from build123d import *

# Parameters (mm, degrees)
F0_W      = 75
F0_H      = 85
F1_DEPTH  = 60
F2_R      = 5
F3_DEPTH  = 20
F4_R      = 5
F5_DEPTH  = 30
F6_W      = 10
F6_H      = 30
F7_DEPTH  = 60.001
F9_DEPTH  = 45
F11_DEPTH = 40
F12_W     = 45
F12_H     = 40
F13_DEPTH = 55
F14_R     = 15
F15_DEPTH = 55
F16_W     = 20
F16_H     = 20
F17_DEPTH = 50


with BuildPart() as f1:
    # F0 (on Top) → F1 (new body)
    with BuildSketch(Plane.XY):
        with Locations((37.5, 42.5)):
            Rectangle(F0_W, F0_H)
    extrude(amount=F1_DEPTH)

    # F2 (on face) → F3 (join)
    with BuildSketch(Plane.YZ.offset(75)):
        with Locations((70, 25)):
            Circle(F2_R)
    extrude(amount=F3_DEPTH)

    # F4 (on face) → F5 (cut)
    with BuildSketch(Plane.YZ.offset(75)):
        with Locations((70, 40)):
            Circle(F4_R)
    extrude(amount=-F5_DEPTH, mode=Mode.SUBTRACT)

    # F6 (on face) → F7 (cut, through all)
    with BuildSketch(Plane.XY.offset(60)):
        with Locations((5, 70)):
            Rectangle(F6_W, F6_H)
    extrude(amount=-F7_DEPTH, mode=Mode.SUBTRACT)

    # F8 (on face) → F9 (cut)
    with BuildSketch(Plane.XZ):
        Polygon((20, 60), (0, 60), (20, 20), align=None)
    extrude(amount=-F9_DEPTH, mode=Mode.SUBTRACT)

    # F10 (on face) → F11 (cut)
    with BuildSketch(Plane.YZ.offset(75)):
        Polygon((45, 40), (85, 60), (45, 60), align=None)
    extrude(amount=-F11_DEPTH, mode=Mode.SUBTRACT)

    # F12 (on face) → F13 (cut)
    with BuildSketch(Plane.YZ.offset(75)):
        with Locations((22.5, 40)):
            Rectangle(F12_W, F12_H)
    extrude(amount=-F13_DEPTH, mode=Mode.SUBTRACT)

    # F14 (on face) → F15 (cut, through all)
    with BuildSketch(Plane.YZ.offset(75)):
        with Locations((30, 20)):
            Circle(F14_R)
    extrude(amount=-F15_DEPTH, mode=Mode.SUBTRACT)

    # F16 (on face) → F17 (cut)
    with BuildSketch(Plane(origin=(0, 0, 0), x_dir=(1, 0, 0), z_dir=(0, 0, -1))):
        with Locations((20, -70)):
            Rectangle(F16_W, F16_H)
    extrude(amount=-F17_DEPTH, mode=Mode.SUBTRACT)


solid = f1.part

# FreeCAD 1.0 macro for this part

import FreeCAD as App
import Part
import Sketcher

V = App.Vector


def add_polygon(sketch, points):
    """Adds a closed chain of lines whose ends are joined by coincident constraints."""
    first, n = sketch.GeometryCount, len(points)
    for a, b in zip(points, points[1:] + points[:1]):
        sketch.addGeometry(Part.LineSegment(App.Vector(*a, 0), App.Vector(*b, 0)), False)
    for i in range(n):
        sketch.addConstraint(Sketcher.Constraint("Coincident", first + i, 2, first + (i + 1) % n, 1))

doc = App.newDocument("Part")
body = doc.addObject("PartDesign::Body", "Body")

# Sketch on XY plane
sketch1 = body.newObject("Sketcher::SketchObject", "Sketch")
sketch1.AttachmentSupport = (doc.getObject("XY_Plane"), [""])
sketch1.MapMode = "FlatFace"
add_polygon(sketch1, [(0, 85), (0, 0), (75, 0), (75, 85)])  # lines 0-3
sketch1.addConstraint([
    Sketcher.Constraint("Vertical", 0),
    Sketcher.Constraint("Horizontal", 1),
    Sketcher.Constraint("Vertical", 2),
    Sketcher.Constraint("Horizontal", 3),
    Sketcher.Constraint("Coincident", 0, 2, -1, 1),
    Sketcher.Constraint("DistanceX", 1, 1, 1, 2, 75.0),
    Sketcher.Constraint("DistanceY", 0, 2, 0, 1, 85.0),
])
pad1 = body.newObject("PartDesign::Pad", "Pad")
pad1.Profile = sketch1
pad1.Length = 60

# Sketch on YZ plane
sketch2 = body.newObject("Sketcher::SketchObject", "Sketch001")
sketch2.AttachmentSupport = (doc.getObject("YZ_Plane"), [""])
sketch2.MapMode = "FlatFace"
sketch2.AttachmentOffset = App.Placement(V(0, 0, 75), App.Rotation())
sketch2.addGeometry(Part.Circle(V(70, 25, 0), V(0, 0, 1), 5), False)
sketch2.addConstraint([
    Sketcher.Constraint("Diameter", 0, 10.0),
    Sketcher.Constraint("DistanceX", -1, 1, 0, 3, 70.0),
    Sketcher.Constraint("DistanceY", -1, 1, 0, 3, 25.0),
])
pad2 = body.newObject("PartDesign::Pad", "Pad001")
pad2.Profile = sketch2
pad2.Length = 20

# Sketch on YZ plane
sketch3 = body.newObject("Sketcher::SketchObject", "Sketch002")
sketch3.AttachmentSupport = (doc.getObject("YZ_Plane"), [""])
sketch3.MapMode = "FlatFace"
sketch3.AttachmentOffset = App.Placement(V(0, 0, 75), App.Rotation())
sketch3.addGeometry(Part.Circle(V(70, 40, 0), V(0, 0, 1), 5), False)
sketch3.addConstraint([
    Sketcher.Constraint("Diameter", 0, 10.0),
    Sketcher.Constraint("DistanceX", -1, 1, 0, 3, 70.0),
    Sketcher.Constraint("DistanceY", -1, 1, 0, 3, 40.0),
])
pocket1 = body.newObject("PartDesign::Pocket", "Pocket")
pocket1.Profile = sketch3
pocket1.Length = 30

# Sketch on XY plane
sketch4 = body.newObject("Sketcher::SketchObject", "Sketch003")
sketch4.AttachmentSupport = (doc.getObject("XY_Plane"), [""])
sketch4.MapMode = "FlatFace"
sketch4.AttachmentOffset = App.Placement(V(0, 0, 60), App.Rotation())
add_polygon(sketch4, [(0, 85), (0, 55), (10, 55), (10, 85)])  # lines 0-3
sketch4.addConstraint([
    Sketcher.Constraint("Vertical", 0),
    Sketcher.Constraint("Horizontal", 1),
    Sketcher.Constraint("Vertical", 2),
    Sketcher.Constraint("Horizontal", 3),
    Sketcher.Constraint("PointOnObject", 0, 2, -2),
    Sketcher.Constraint("DistanceX", 1, 1, 1, 2, 10.0),
    Sketcher.Constraint("DistanceY", 0, 2, 0, 1, 30.0),
    Sketcher.Constraint("DistanceY", -1, 1, 0, 2, 55.0),
])
pocket2 = body.newObject("PartDesign::Pocket", "Pocket001")
pocket2.Profile = sketch4
pocket2.Type = "ThroughAll"

# Sketch on XZ plane
sketch5 = body.newObject("Sketcher::SketchObject", "Sketch004")
sketch5.AttachmentSupport = (doc.getObject("XZ_Plane"), [""])
sketch5.MapMode = "FlatFace"
add_polygon(sketch5, [(20, 60), (0, 60), (20, 20)])  # lines 0-2
sketch5.addConstraint([
    Sketcher.Constraint("Horizontal", 0),
    Sketcher.Constraint("Vertical", 2),
    Sketcher.Constraint("PointOnObject", 0, 2, -2),
    Sketcher.Constraint("DistanceX", 0, 2, 0, 1, 20.0),
    Sketcher.Constraint("DistanceY", 2, 1, 2, 2, 40.0),
    Sketcher.Constraint("DistanceY", -1, 1, 0, 2, 60.0),
])
pocket3 = body.newObject("PartDesign::Pocket", "Pocket002")
pocket3.Profile = sketch5
pocket3.Length = 45

# Sketch on YZ plane
sketch6 = body.newObject("Sketcher::SketchObject", "Sketch005")
sketch6.AttachmentSupport = (doc.getObject("YZ_Plane"), [""])
sketch6.MapMode = "FlatFace"
sketch6.AttachmentOffset = App.Placement(V(0, 0, 75), App.Rotation())
add_polygon(sketch6, [(45, 40), (85, 60), (45, 60)])  # lines 0-2
sketch6.addConstraint([
    Sketcher.Constraint("Horizontal", 1),
    Sketcher.Constraint("Vertical", 2),
    Sketcher.Constraint("DistanceX", 1, 2, 1, 1, 40.0),
    Sketcher.Constraint("DistanceY", 2, 2, 2, 1, 20.0),
    Sketcher.Constraint("DistanceX", -1, 1, 0, 2, 85.0),
    Sketcher.Constraint("DistanceY", -1, 1, 0, 2, 60.0),
])
pocket4 = body.newObject("PartDesign::Pocket", "Pocket003")
pocket4.Profile = sketch6
pocket4.Length = 40

# Sketch on YZ plane
sketch7 = body.newObject("Sketcher::SketchObject", "Sketch006")
sketch7.AttachmentSupport = (doc.getObject("YZ_Plane"), [""])
sketch7.MapMode = "FlatFace"
sketch7.AttachmentOffset = App.Placement(V(0, 0, 75), App.Rotation())
add_polygon(sketch7, [(0, 60), (0, 20), (45, 20), (45, 60)])  # lines 0-3
sketch7.addConstraint([
    Sketcher.Constraint("Vertical", 0),
    Sketcher.Constraint("Horizontal", 1),
    Sketcher.Constraint("Vertical", 2),
    Sketcher.Constraint("Horizontal", 3),
    Sketcher.Constraint("PointOnObject", 0, 2, -2),
    Sketcher.Constraint("DistanceX", 1, 1, 1, 2, 45.0),
    Sketcher.Constraint("DistanceY", 0, 2, 0, 1, 40.0),
    Sketcher.Constraint("DistanceY", -1, 1, 0, 2, 20.0),
])
pocket5 = body.newObject("PartDesign::Pocket", "Pocket004")
pocket5.Profile = sketch7
pocket5.Length = 55

# Sketch on YZ plane
sketch8 = body.newObject("Sketcher::SketchObject", "Sketch007")
sketch8.AttachmentSupport = (doc.getObject("YZ_Plane"), [""])
sketch8.MapMode = "FlatFace"
sketch8.AttachmentOffset = App.Placement(V(0, 0, 75), App.Rotation())
sketch8.addGeometry(Part.Circle(V(30, 20, 0), V(0, 0, 1), 15), False)
sketch8.addConstraint([
    Sketcher.Constraint("Diameter", 0, 30.0),
    Sketcher.Constraint("DistanceX", -1, 1, 0, 3, 30.0),
    Sketcher.Constraint("DistanceY", -1, 1, 0, 3, 20.0),
])
pocket6 = body.newObject("PartDesign::Pocket", "Pocket005")
pocket6.Profile = sketch8
pocket6.Length = 55

# Sketch on XY plane
sketch9 = body.newObject("Sketcher::SketchObject", "Sketch008")
sketch9.AttachmentSupport = (doc.getObject("XY_Plane"), [""])
sketch9.MapMode = "FlatFace"
add_polygon(sketch9, [(10, 60), (10, 80), (30, 80), (30, 60)])  # lines 0-3
sketch9.addConstraint([
    Sketcher.Constraint("Vertical", 0),
    Sketcher.Constraint("Horizontal", 1),
    Sketcher.Constraint("Vertical", 2),
    Sketcher.Constraint("Horizontal", 3),
    Sketcher.Constraint("Equal", 3, 0),
    Sketcher.Constraint("DistanceX", 1, 1, 1, 2, 20.0),
    Sketcher.Constraint("DistanceX", -1, 1, 0, 2, 10.0),
    Sketcher.Constraint("DistanceY", -1, 1, 0, 2, 80.0),
])
pocket7 = body.newObject("PartDesign::Pocket", "Pocket006")
pocket7.Profile = sketch9
pocket7.Length = 50
pocket7.Reversed = True

doc.recompute()
